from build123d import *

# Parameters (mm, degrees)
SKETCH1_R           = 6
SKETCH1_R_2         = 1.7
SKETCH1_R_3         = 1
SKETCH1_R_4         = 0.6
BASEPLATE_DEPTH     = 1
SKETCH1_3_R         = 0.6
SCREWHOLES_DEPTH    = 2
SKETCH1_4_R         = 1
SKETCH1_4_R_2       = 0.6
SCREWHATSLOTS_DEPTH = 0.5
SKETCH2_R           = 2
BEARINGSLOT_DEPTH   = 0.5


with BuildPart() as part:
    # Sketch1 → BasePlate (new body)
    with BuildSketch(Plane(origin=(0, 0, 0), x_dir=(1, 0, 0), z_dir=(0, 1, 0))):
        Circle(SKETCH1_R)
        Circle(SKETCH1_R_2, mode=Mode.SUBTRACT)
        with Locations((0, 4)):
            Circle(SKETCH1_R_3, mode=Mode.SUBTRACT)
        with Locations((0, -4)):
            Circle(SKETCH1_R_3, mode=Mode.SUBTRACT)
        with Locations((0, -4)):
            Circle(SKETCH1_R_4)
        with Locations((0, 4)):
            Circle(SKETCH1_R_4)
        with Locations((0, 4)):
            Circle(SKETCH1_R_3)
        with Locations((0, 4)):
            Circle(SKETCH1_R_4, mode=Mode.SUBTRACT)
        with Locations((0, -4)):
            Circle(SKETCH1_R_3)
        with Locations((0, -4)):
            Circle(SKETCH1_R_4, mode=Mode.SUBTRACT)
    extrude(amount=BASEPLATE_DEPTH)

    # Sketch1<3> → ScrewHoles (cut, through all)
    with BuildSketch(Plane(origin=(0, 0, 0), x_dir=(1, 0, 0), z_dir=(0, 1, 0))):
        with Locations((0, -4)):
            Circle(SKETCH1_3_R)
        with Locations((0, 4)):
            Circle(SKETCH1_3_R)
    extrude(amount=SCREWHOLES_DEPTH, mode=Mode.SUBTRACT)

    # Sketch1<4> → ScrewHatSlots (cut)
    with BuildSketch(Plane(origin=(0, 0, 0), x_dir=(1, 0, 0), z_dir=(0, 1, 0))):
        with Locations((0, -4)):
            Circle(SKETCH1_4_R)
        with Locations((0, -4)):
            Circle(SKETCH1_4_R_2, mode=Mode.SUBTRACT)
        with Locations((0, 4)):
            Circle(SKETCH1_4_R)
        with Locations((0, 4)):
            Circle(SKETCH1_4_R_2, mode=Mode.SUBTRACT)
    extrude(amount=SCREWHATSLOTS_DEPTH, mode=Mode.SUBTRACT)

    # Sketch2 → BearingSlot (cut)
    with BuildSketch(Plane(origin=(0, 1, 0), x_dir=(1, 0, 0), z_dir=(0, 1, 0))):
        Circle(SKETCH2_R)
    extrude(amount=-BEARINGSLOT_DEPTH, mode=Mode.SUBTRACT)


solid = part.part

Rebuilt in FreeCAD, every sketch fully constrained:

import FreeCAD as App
import Part
import Sketcher

V = App.Vector
Q = App.Units.Quantity

doc = App.newDocument("Part")
params = doc.addObject("Spreadsheet::Sheet", "Params")
for row, (alias, value) in enumerate([
    ("sketch1_diameter", "12 mm"),
    ("sketch1_diameter2", "1.2 mm"),
    ("sketch1_diameter3", "3.4 mm"),
    ("pad1_length", "1 mm"),
    ("sketch2_diameter", "1.2 mm"),
    ("sketch3_diameter", "2 mm"),
    ("sketch3_diameter2", "1.2 mm"),
    ("pocket2_length", "0.5 mm"),
    ("sketch4_diameter", "4 mm"),
    ("pocket3_length", "0.5 mm"),
], start=1):
    params.set(f"A{row}", alias)
    params.set(f"B{row}", "=" + value)
    params.setAlias(f"B{row}", alias)

body = doc.addObject("PartDesign::Body", "Body")

# Sketch on XZ plane
sketch1 = body.newObject("Sketcher::SketchObject", "Sketch")
sketch1.AttachmentSupport = (doc.getObject("XZ_Plane"), [""])
sketch1.MapMode = "FlatFace"
sketch1.addGeometry(Part.Circle(V(0, 0, 0), V(0, 0, 1), 6), False)
sketch1.addGeometry(Part.Circle(V(0, 4, 0), V(0, 0, 1), 0.6), False)
sketch1.addGeometry(Part.Circle(V(0, -4, 0), V(0, 0, 1), 0.6), False)
sketch1.addGeometry(Part.Circle(V(0, 0, 0), V(0, 0, 1), 1.7), False)
sketch1.addConstraint(Sketcher.Constraint("Coincident", 0, 3, -1, 1))
sketch1.addConstraint(Sketcher.Constraint("Coincident", 3, 3, -1, 1))
sketch1.addConstraint(Sketcher.Constraint("Equal", 1, 2))
sketch1.addConstraint(Sketcher.Constraint("Symmetric", 1, 3, 2, 3, -1, 1))
sketch1.addConstraint(Sketcher.Constraint("PointOnObject", 1, 3, -2))
sketch1.addConstraint(Sketcher.Constraint("Diameter", 0, Q("12 mm")))
sketch1.addConstraint(Sketcher.Constraint("Diameter", 1, Q("1.2 mm")))
sketch1.addConstraint(Sketcher.Constraint("Diameter", 3, Q("3.4 mm")))
sketch1.addConstraint(Sketcher.Constraint("DistanceY", -1, 1, 1, 3, Q("4 mm")))
sketch1.setExpression("Constraints[5]", "Params.sketch1_diameter")
sketch1.setExpression("Constraints[6]", "Params.sketch1_diameter2")
sketch1.setExpression("Constraints[7]", "Params.sketch1_diameter3")
pad1 = body.newObject("PartDesign::Pad", "Pad")
pad1.Profile = sketch1
pad1.setExpression("Length", "Params.pad1_length")
pad1.Reversed = True

# Sketch on XZ plane
sketch2 = body.newObject("Sketcher::SketchObject", "Sketch001")
sketch2.AttachmentSupport = (doc.getObject("XZ_Plane"), [""])
sketch2.MapMode = "FlatFace"
sketch2.addGeometry(Part.Circle(V(0, 4, 0), V(0, 0, 1), 0.6), False)
sketch2.addGeometry(Part.Circle(V(0, -4, 0), V(0, 0, 1), 0.6), False)
sketch2.addConstraint(Sketcher.Constraint("Equal", 0, 1))
sketch2.addConstraint(Sketcher.Constraint("Symmetric", 0, 3, 1, 3, -1, 1))
sketch2.addConstraint(Sketcher.Constraint("PointOnObject", 0, 3, -2))
sketch2.addConstraint(Sketcher.Constraint("Diameter", 0, Q("1.2 mm")))
sketch2.addConstraint(Sketcher.Constraint("DistanceY", -1, 1, 0, 3, Q("4 mm")))
sketch2.setExpression("Constraints[3]", "Params.sketch2_diameter")
pocket1 = body.newObject("PartDesign::Pocket", "Pocket")
pocket1.Profile = sketch2
pocket1.Type = "ThroughAll"

# Sketch on XZ plane
sketch3 = body.newObject("Sketcher::SketchObject", "Sketch002")
sketch3.AttachmentSupport = (doc.getObject("XZ_Plane"), [""])
sketch3.MapMode = "FlatFace"
sketch3.addGeometry(Part.Circle(V(0, 4, 0), V(0, 0, 1), 1), False)
sketch3.addGeometry(Part.Circle(V(0, 4, 0), V(0, 0, 1), 0.6), False)
sketch3.addGeometry(Part.Circle(V(0, -4, 0), V(0, 0, 1), 1), False)
sketch3.addGeometry(Part.Circle(V(0, -4, 0), V(0, 0, 1), 0.6), False)
sketch3.addConstraint(Sketcher.Constraint("Coincident", 1, 3, 0, 3))
sketch3.addConstraint(Sketcher.Constraint("Coincident", 3, 3, 2, 3))
sketch3.addConstraint(Sketcher.Constraint("Equal", 0, 2))
sketch3.addConstraint(Sketcher.Constraint("Equal", 1, 3))
sketch3.addConstraint(Sketcher.Constraint("Symmetric", 0, 3, 2, 3, -1, 1))
sketch3.addConstraint(Sketcher.Constraint("PointOnObject", 0, 3, -2))
sketch3.addConstraint(Sketcher.Constraint("Diameter", 0, Q("2 mm")))
sketch3.addConstraint(Sketcher.Constraint("Diameter", 1, Q("1.2 mm")))
sketch3.addConstraint(Sketcher.Constraint("DistanceY", -1, 1, 0, 3, Q("4 mm")))
sketch3.setExpression("Constraints[6]", "Params.sketch3_diameter")
sketch3.setExpression("Constraints[7]", "Params.sketch3_diameter2")
pocket2 = body.newObject("PartDesign::Pocket", "Pocket001")
pocket2.Profile = sketch3
pocket2.setExpression("Length", "Params.pocket2_length")

# Sketch on XZ plane
sketch4 = body.newObject("Sketcher::SketchObject", "Sketch003")
sketch4.AttachmentSupport = (doc.getObject("XZ_Plane"), [""])
sketch4.MapMode = "FlatFace"
sketch4.AttachmentOffset = App.Placement(V(0, 0, -1), App.Rotation())
sketch4.addGeometry(Part.Circle(V(0, 0, 0), V(0, 0, 1), 2), False)
sketch4.addConstraint(Sketcher.Constraint("Coincident", 0, 3, -1, 1))
sketch4.addConstraint(Sketcher.Constraint("Diameter", 0, Q("4 mm")))
sketch4.setExpression("Constraints[1]", "Params.sketch4_diameter")
pocket3 = body.newObject("PartDesign::Pocket", "Pocket002")
pocket3.Profile = sketch4
pocket3.setExpression("Length", "Params.pocket3_length")
pocket3.Reversed = True

doc.recompute()
